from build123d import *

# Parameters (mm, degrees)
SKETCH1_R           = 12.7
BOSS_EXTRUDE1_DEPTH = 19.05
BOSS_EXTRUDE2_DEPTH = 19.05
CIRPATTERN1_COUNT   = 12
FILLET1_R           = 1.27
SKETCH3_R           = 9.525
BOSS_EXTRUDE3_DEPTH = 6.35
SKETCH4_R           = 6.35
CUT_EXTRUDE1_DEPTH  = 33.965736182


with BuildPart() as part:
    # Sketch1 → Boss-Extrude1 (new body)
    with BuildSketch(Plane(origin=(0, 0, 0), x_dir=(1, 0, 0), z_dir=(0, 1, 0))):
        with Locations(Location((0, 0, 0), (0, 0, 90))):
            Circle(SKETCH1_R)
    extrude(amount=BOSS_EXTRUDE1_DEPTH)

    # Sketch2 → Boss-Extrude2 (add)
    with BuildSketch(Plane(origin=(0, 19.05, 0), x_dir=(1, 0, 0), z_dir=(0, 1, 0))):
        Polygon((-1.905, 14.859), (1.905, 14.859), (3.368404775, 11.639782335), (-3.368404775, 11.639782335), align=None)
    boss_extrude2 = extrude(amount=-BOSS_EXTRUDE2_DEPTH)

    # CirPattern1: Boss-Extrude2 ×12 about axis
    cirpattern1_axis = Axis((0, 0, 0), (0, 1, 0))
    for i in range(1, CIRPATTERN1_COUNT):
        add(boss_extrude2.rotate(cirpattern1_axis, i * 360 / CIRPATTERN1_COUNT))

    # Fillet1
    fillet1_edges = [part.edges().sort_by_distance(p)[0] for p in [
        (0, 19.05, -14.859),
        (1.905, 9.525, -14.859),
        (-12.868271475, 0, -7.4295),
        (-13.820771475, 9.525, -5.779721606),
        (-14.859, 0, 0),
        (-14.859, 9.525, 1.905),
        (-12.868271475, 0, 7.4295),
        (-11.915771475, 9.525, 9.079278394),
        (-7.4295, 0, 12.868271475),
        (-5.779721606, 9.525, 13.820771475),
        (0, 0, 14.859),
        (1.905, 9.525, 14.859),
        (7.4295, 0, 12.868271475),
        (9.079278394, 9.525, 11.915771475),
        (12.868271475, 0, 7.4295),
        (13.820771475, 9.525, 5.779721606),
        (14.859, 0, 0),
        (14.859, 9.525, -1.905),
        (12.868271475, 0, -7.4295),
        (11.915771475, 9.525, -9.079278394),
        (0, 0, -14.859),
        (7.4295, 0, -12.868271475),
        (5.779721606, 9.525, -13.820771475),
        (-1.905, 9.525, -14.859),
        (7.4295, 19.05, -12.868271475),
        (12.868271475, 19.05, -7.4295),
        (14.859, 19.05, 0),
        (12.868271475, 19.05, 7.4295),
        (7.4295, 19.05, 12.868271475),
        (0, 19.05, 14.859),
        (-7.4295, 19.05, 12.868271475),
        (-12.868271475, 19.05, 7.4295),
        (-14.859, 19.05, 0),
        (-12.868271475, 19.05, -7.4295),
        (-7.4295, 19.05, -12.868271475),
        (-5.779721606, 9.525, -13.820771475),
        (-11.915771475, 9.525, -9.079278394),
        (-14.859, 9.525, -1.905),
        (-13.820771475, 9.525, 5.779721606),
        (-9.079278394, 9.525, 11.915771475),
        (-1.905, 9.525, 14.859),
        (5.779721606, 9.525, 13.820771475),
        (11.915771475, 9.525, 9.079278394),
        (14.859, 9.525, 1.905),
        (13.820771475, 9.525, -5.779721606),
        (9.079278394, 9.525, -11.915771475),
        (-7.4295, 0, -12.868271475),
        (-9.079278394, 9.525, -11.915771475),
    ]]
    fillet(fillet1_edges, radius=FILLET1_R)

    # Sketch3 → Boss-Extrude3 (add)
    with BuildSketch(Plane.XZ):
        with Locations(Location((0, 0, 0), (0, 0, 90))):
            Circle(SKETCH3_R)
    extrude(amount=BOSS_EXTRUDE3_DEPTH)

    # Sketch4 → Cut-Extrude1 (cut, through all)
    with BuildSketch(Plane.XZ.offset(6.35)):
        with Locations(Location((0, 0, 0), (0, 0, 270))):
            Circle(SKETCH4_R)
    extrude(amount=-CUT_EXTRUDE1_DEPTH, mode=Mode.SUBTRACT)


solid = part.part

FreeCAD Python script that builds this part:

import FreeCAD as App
import Part
import Sketcher
Q = App.Units.Quantity


def edges_at(feature, points):
    """Names of the edges that pass closest to the given points."""
    edges = feature.Shape.Edges
    near = lambda p: min(range(len(edges)), key=lambda i: edges[i].distToShape(Part.Vertex(*p))[0])
    return sorted({f"Edge{near(p) + 1}" for p in points})

doc = App.newDocument("Part")
body = doc.addObject("PartDesign::Body", "Body")

# Sketch on XZ plane
sketch1 = doc.addObject("Sketcher::SketchObject", "Sketch")
body.addObject(sketch1)
sketch1.AttachmentSupport = (doc.XZ_Plane, [""])
sketch1.MapMode = "FlatFace"
sketch1.addGeometry(Part.Circle(App.Vector(0, 0, 0), App.Vector(0, 0, 1), 12.7), False)
sketch1.addConstraint(Sketcher.Constraint("Coincident", 0, 3, -1, 1))
sketch1.addConstraint(Sketcher.Constraint("Diameter", 0, Q("1 in")))
pad1 = doc.addObject("PartDesign::Pad", "Pad")
body.addObject(pad1)
pad1.Profile = sketch1
pad1.Length = Q("0.75 in")
pad1.Reversed = True

# Sketch on XZ plane
sketch2 = doc.addObject("Sketcher::SketchObject", "Sketch001")
body.addObject(sketch2)
sketch2.AttachmentSupport = (doc.XZ_Plane, [""])
sketch2.MapMode = "FlatFace"
sketch2.AttachmentOffset = App.Placement(App.Vector(0, 0, -0.75 * 25.4), App.Rotation())
sketch2.addGeometry(Part.LineSegment(App.Vector(1.905, -14.859, 0), App.Vector(-1.905, -14.859, 0)), False)
sketch2.addGeometry(Part.LineSegment(App.Vector(-1.905, -14.859, 0), App.Vector(-3.368405, -11.639782, 0)), False)
sketch2.addGeometry(Part.LineSegment(App.Vector(-3.368405, -11.639782, 0), App.Vector(3.368405, -11.639782, 0)), False)
sketch2.addGeometry(Part.LineSegment(App.Vector(3.368405, -11.639782, 0), App.Vector(1.905, -14.859, 0)), False)
sketch2.addConstraint(Sketcher.Constraint("Coincident", 0, 2, 1, 1))
sketch2.addConstraint(Sketcher.Constraint("Coincident", 1, 2, 2, 1))
sketch2.addConstraint(Sketcher.Constraint("Coincident", 2, 2, 3, 1))
sketch2.addConstraint(Sketcher.Constraint("Coincident", 3, 2, 0, 1))
sketch2.addConstraint(Sketcher.Constraint("Horizontal", 0))
sketch2.addConstraint(Sketcher.Constraint("Horizontal", 2))
sketch2.addConstraint(Sketcher.Constraint("Equal", 1, 3))
sketch2.addConstraint(Sketcher.Constraint("DistanceX", 0, 2, 0, 1, Q("0.15 in")))
sketch2.addConstraint(Sketcher.Constraint("DistanceX", 0, 2, -1, 1, Q("0.075 in")))
sketch2.addConstraint(Sketcher.Constraint("DistanceY", 0, 2, -1, 1, Q("0.585 in")))
sketch2.addConstraint(Sketcher.Constraint("DistanceX", 2, 1, 2, 2, Q("6.73681 mm")))
sketch2.addConstraint(Sketcher.Constraint("Distance", 1, Q("3.536229 mm")))
pad2 = doc.addObject("PartDesign::Pad", "Pad001")
body.addObject(pad2)
pad2.Profile = sketch2
pad2.Length = Q("0.75 in")
doc.recompute()

polarpattern = doc.addObject("PartDesign::PolarPattern", "PolarPattern")
body.addObject(polarpattern)
polarpattern.Originals = [pad2]
polarpattern.Axis = (doc.Y_Axis, [""])
polarpattern.Angle = 360
polarpattern.Occurrences = 12
body.Tip = polarpattern
doc.recompute()

fillet = doc.addObject("PartDesign::Fillet", "Fillet")
body.addObject(fillet)
fillet.Base = (polarpattern, edges_at(polarpattern, [
    (0, 19.05, -14.859),
    (1.905, 9.525, -14.859),
    (-12.868, 0, -7.429),
    (-13.821, 9.525, -5.78),
    (-14.859, 0, 0),
    (-14.859, 9.525, 1.905),
    (-12.868, 0, 7.429),
    (-11.916, 9.525, 9.079),
    (-7.429, 0, 12.868),
    (-5.78, 9.525, 13.821),
    (0, 0, 14.859),
    (1.905, 9.525, 14.859),
    (7.429, 0, 12.868),
    (9.079, 9.525, 11.916),
    (12.868, 0, 7.429),
    (13.821, 9.525, 5.78),
    (14.859, 0, 0),
    (14.859, 9.525, -1.905),
    (12.868, 0, -7.429),
    (11.916, 9.525, -9.079),
    (0, 0, -14.859),
    (7.429, 0, -12.868),
    (5.78, 9.525, -13.821),
    (-1.905, 9.525, -14.859),
    (7.429, 19.05, -12.868),
    (12.868, 19.05, -7.429),
    (14.859, 19.05, 0),
    (12.868, 19.05, 7.429),
    (7.429, 19.05, 12.868),
    (0, 19.05, 14.859),
    (-7.429, 19.05, 12.868),
    (-12.868, 19.05, 7.429),
    (-14.859, 19.05, 0),
    (-12.868, 19.05, -7.429),
    (-7.429, 19.05, -12.868),
    (-5.78, 9.525, -13.821),
    (-11.916, 9.525, -9.079),
    (-14.859, 9.525, -1.905),
    (-13.821, 9.525, 5.78),
    (-9.079, 9.525, 11.916),
    (-1.905, 9.525, 14.859),
    (5.78, 9.525, 13.821),
    (11.916, 9.525, 9.079),
    (14.859, 9.525, 1.905),
    (13.821, 9.525, -5.78),
    (9.079, 9.525, -11.916),
    (-7.429, 0, -12.868),
    (-9.079, 9.525, -11.916),
]))
fillet.Radius = Q("0.05 in")

# Sketch on XZ plane
sketch3 = doc.addObject("Sketcher::SketchObject", "Sketch002")
body.addObject(sketch3)
sketch3.AttachmentSupport = (doc.XZ_Plane, [""])
sketch3.MapMode = "FlatFace"
sketch3.addGeometry(Part.Circle(App.Vector(0, 0, 0), App.Vector(0, 0, 1), 9.525), False)
sketch3.addConstraint(Sketcher.Constraint("Coincident", 0, 3, -1, 1))
sketch3.addConstraint(Sketcher.Constraint("Diameter", 0, Q("0.75 in")))
pad3 = doc.addObject("PartDesign::Pad", "Pad002")
body.addObject(pad3)
pad3.Profile = sketch3
pad3.Length = Q("0.25 in")

# Sketch on XZ plane
sketch4 = doc.addObject("Sketcher::SketchObject", "Sketch003")
body.addObject(sketch4)
sketch4.AttachmentSupport = (doc.XZ_Plane, [""])
sketch4.MapMode = "FlatFace"
sketch4.AttachmentOffset = App.Placement(App.Vector(0, 0, 0.25 * 25.4), App.Rotation())
sketch4.addGeometry(Part.Circle(App.Vector(0, 0, 0), App.Vector(0, 0, 1), 6.35), False)
sketch4.addConstraint(Sketcher.Constraint("Coincident", 0, 3, -1, 1))
sketch4.addConstraint(Sketcher.Constraint("Diameter", 0, Q("0.5 in")))
pocket1 = doc.addObject("PartDesign::Pocket", "Pocket")
body.addObject(pocket1)
pocket1.Profile = sketch4
pocket1.Type = "ThroughAll"

doc.recompute()
